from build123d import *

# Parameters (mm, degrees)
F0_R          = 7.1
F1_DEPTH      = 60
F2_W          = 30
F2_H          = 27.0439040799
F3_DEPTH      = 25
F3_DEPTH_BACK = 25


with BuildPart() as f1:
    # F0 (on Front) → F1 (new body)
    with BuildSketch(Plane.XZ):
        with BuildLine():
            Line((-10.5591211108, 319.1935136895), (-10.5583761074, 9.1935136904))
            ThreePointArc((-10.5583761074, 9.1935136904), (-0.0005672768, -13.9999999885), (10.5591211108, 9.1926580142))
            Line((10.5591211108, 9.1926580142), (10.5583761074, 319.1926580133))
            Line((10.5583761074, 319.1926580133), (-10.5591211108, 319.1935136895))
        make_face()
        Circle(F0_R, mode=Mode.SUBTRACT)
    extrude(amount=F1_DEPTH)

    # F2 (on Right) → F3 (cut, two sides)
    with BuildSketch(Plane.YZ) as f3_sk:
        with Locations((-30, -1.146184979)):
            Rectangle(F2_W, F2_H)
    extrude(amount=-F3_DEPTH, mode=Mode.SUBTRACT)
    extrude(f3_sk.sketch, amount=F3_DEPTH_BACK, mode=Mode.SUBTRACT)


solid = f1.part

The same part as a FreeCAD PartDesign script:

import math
import FreeCAD as App
import Part
import Sketcher
from FreeCAD import Vector

doc = App.newDocument("Part")
body = doc.addObject("PartDesign::Body", "Body")

sketch1 = doc.addObject("Sketcher::SketchObject", "Sketch")
body.addObject(sketch1)
sketch1.AttachmentSupport = (doc.XZ_Plane, [""])
sketch1.MapMode = "FlatFace"
sketch1.addGeometry([
    Part.LineSegment(Vector(-11, 319, 0), Vector(-11, 9, 0)),
    Part.ArcOfCircle(Part.Circle(Vector(0, 0, 0), Vector(0, 0, 1), 14), math.radians(139), math.radians(401)),
    Part.LineSegment(Vector(11, 9, 0), Vector(11, 319, 0)),
    Part.LineSegment(Vector(11, 319, 0), Vector(-11, 319, 0)),
    Part.Circle(Vector(0, 0, 0), Vector(0, 0, 1), 7),
], False)
sketch1.addConstraint([
    Sketcher.Constraint("Coincident", 0, 2, 1, 1),
    Sketcher.Constraint("Coincident", 1, 2, 2, 1),
    Sketcher.Constraint("Coincident", 2, 2, 3, 1),
    Sketcher.Constraint("Coincident", 3, 2, 0, 1),
    Sketcher.Constraint("Coincident", 1, 3, -1, 1),
    Sketcher.Constraint("Coincident", 4, 3, -1, 1),
    Sketcher.Constraint("Parallel", 0, 2),
    Sketcher.Constraint("Equal", 0, 2),
    Sketcher.Constraint("Radius", 1, 14.0),
    Sketcher.Constraint("Diameter", 4, 14.2),
    Sketcher.Constraint("Distance", 0, 310.0),
    Sketcher.Constraint("DistanceX", -1, 1, 1, 2, 10.559121),
    Sketcher.Constraint("DistanceX", 3, 2, -1, 1, 10.559121),
    Sketcher.Constraint("Distance", 3, 21.117497),
])
pad1 = doc.addObject("PartDesign::Pad", "Pad")
body.addObject(pad1)
pad1.Profile = sketch1
pad1.Length = 60

sketch2 = doc.addObject("Sketcher::SketchObject", "Sketch001")
body.addObject(sketch2)
sketch2.AttachmentSupport = (doc.YZ_Plane, [""])
sketch2.MapMode = "FlatFace"
sketch2.addGeometry([
    Part.LineSegment(Vector(-45, 12, 0), Vector(-45, -15, 0)),
    Part.LineSegment(Vector(-45, -15, 0), Vector(-15, -15, 0)),
    Part.LineSegment(Vector(-15, -15, 0), Vector(-15, 12, 0)),
    Part.LineSegment(Vector(-15, 12, 0), Vector(-45, 12, 0)),
], False)
sketch2.addConstraint([
    Sketcher.Constraint("Coincident", 0, 2, 1, 1),
    Sketcher.Constraint("Coincident", 1, 2, 2, 1),
    Sketcher.Constraint("Coincident", 2, 2, 3, 1),
    Sketcher.Constraint("Coincident", 3, 2, 0, 1),
    Sketcher.Constraint("Vertical", 0),
    Sketcher.Constraint("Horizontal", 1),
    Sketcher.Constraint("Vertical", 2),
    Sketcher.Constraint("Horizontal", 3),
    Sketcher.Constraint("DistanceX", 1, 1, 1, 2, 30.0),
    Sketcher.Constraint("DistanceX", 0, 2, -1, 1, 45.0),
    Sketcher.Constraint("DistanceY", 0, 2, 0, 1, 27.043904),
    Sketcher.Constraint("DistanceY", 0, 2, -1, 1, 14.668137),
])
pocket1 = doc.addObject("PartDesign::Pocket", "Pocket")
body.addObject(pocket1)
pocket1.Profile = sketch2
pocket1.Type = "ThroughAll"
pocket1.Midplane = True

doc.recompute()
